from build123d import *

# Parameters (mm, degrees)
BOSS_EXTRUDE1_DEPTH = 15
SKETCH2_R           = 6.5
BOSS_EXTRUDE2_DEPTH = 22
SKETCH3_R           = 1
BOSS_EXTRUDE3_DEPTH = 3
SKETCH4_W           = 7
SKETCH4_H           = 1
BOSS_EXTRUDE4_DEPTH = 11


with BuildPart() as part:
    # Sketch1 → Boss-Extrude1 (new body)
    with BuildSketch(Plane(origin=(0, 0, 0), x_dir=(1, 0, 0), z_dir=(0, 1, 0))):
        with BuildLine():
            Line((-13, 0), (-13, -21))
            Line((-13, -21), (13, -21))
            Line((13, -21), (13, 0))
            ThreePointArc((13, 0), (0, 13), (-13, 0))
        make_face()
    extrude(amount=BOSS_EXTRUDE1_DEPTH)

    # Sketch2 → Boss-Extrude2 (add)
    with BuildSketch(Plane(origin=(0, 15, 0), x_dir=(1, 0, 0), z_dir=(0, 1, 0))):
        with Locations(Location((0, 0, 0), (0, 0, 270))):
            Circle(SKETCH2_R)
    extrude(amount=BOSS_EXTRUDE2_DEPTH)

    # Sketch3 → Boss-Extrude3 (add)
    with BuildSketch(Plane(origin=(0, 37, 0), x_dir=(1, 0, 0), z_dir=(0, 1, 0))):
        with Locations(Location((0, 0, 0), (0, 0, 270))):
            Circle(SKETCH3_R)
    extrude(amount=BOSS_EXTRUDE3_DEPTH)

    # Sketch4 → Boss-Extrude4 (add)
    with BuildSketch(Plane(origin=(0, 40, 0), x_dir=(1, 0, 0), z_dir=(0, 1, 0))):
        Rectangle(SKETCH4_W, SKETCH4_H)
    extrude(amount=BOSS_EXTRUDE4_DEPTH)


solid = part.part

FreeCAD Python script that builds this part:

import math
import FreeCAD as App
import Part
import Sketcher
from FreeCAD import Vector
Q = App.Units.Quantity

doc = App.newDocument("Part")
body = doc.addObject("PartDesign::Body", "Body")

sketch1 = doc.addObject("Sketcher::SketchObject", "Sketch")
body.addObject(sketch1)
sketch1.AttachmentSupport = (doc.XZ_Plane, [""])
sketch1.MapMode = "FlatFace"
sketch1.addGeometry(Part.LineSegment(Vector(-13, 0, 0), Vector(-13, 21, 0)), False)
sketch1.addGeometry(Part.LineSegment(Vector(-13, 21, 0), Vector(13, 21, 0)), False)
sketch1.addGeometry(Part.LineSegment(Vector(13, 21, 0), Vector(13, 0, 0)), False)
sketch1.addGeometry(Part.ArcOfCircle(Part.Circle(Vector(0, 0, 0), Vector(0, 0, 1), 13), math.radians(180), math.radians(360)), False)
sketch1.addConstraint(Sketcher.Constraint("Coincident", 0, 2, 1, 1))
sketch1.addConstraint(Sketcher.Constraint("Coincident", 1, 2, 2, 1))
sketch1.addConstraint(Sketcher.Constraint("Tangent", 2, 2, 3, 2))
sketch1.addConstraint(Sketcher.Constraint("Tangent", 3, 1, 0, 1))
sketch1.addConstraint(Sketcher.Constraint("Vertical", 0))
sketch1.addConstraint(Sketcher.Constraint("Horizontal", 1))
sketch1.addConstraint(Sketcher.Constraint("Vertical", 2))
sketch1.addConstraint(Sketcher.Constraint("Coincident", 3, 3, -1, 1))
sketch1.addConstraint(Sketcher.Constraint("Radius", 3, Q("13 mm")))
sketch1.addConstraint(Sketcher.Constraint("DistanceY", 0, 1, 0, 2, Q("21 mm")))
pad1 = doc.addObject("PartDesign::Pad", "Pad")
body.addObject(pad1)
pad1.Profile = sketch1
pad1.Length = 15
pad1.Reversed = True

sketch2 = doc.addObject("Sketcher::SketchObject", "Sketch001")
body.addObject(sketch2)
sketch2.AttachmentSupport = (doc.XZ_Plane, [""])
sketch2.MapMode = "FlatFace"
sketch2.AttachmentOffset = App.Placement(Vector(0, 0, -15), App.Rotation())
sketch2.addGeometry(Part.Circle(Vector(0, 0, 0), Vector(0, 0, 1), 6), False)
sketch2.addConstraint(Sketcher.Constraint("Coincident", 0, 3, -1, 1))
sketch2.addConstraint(Sketcher.Constraint("Diameter", 0, Q("13 mm")))
pad2 = doc.addObject("PartDesign::Pad", "Pad001")
body.addObject(pad2)
pad2.Profile = sketch2
pad2.Length = 22
pad2.Reversed = True

sketch3 = doc.addObject("Sketcher::SketchObject", "Sketch002")
body.addObject(sketch3)
sketch3.AttachmentSupport = (doc.XZ_Plane, [""])
sketch3.MapMode = "FlatFace"
sketch3.AttachmentOffset = App.Placement(Vector(0, 0, -37), App.Rotation())
sketch3.addGeometry(Part.Circle(Vector(0, 0, 0), Vector(0, 0, 1), 1), False)
sketch3.addConstraint(Sketcher.Constraint("Coincident", 0, 3, -1, 1))
sketch3.addConstraint(Sketcher.Constraint("Diameter", 0, Q("2 mm")))
pad3 = doc.addObject("PartDesign::Pad", "Pad002")
body.addObject(pad3)
pad3.Profile = sketch3
pad3.Length = 3
pad3.Reversed = True

sketch4 = doc.addObject("Sketcher::SketchObject", "Sketch003")
body.addObject(sketch4)
sketch4.AttachmentSupport = (doc.XZ_Plane, [""])
sketch4.MapMode = "FlatFace"
sketch4.AttachmentOffset = App.Placement(Vector(0, 0, -40), App.Rotation())
sketch4.addGeometry(Part.LineSegment(Vector(-3.5, -0.5, 0), Vector(-3.5, 0.5, 0)), False)
sketch4.addGeometry(Part.LineSegment(Vector(-3.5, 0.5, 0), Vector(3.5, 0.5, 0)), False)
sketch4.addGeometry(Part.LineSegment(Vector(3.5, 0.5, 0), Vector(3.5, -0.5, 0)), False)
sketch4.addGeometry(Part.LineSegment(Vector(3.5, -0.5, 0), Vector(-3.5, -0.5, 0)), False)
sketch4.addConstraint(Sketcher.Constraint("Coincident", 0, 2, 1, 1))
sketch4.addConstraint(Sketcher.Constraint("Coincident", 1, 2, 2, 1))
sketch4.addConstraint(Sketcher.Constraint("Coincident", 2, 2, 3, 1))
sketch4.addConstraint(Sketcher.Constraint("Coincident", 3, 2, 0, 1))
sketch4.addConstraint(Sketcher.Constraint("Vertical", 0))
sketch4.addConstraint(Sketcher.Constraint("Horizontal", 1))
sketch4.addConstraint(Sketcher.Constraint("Vertical", 2))
sketch4.addConstraint(Sketcher.Constraint("Horizontal", 3))
sketch4.addConstraint(Sketcher.Constraint("Symmetric", 0, 2, 2, 2, -1, 1))
sketch4.addConstraint(Sketcher.Constraint("DistanceX", 1, 1, 1, 2, Q("7 mm")))
sketch4.addConstraint(Sketcher.Constraint("DistanceY", 0, 1, 0, 2, Q("1 mm")))
pad4 = doc.addObject("PartDesign::Pad", "Pad003")
body.addObject(pad4)
pad4.Profile = sketch4
pad4.Length = 11
pad4.Reversed = True

doc.recompute()
